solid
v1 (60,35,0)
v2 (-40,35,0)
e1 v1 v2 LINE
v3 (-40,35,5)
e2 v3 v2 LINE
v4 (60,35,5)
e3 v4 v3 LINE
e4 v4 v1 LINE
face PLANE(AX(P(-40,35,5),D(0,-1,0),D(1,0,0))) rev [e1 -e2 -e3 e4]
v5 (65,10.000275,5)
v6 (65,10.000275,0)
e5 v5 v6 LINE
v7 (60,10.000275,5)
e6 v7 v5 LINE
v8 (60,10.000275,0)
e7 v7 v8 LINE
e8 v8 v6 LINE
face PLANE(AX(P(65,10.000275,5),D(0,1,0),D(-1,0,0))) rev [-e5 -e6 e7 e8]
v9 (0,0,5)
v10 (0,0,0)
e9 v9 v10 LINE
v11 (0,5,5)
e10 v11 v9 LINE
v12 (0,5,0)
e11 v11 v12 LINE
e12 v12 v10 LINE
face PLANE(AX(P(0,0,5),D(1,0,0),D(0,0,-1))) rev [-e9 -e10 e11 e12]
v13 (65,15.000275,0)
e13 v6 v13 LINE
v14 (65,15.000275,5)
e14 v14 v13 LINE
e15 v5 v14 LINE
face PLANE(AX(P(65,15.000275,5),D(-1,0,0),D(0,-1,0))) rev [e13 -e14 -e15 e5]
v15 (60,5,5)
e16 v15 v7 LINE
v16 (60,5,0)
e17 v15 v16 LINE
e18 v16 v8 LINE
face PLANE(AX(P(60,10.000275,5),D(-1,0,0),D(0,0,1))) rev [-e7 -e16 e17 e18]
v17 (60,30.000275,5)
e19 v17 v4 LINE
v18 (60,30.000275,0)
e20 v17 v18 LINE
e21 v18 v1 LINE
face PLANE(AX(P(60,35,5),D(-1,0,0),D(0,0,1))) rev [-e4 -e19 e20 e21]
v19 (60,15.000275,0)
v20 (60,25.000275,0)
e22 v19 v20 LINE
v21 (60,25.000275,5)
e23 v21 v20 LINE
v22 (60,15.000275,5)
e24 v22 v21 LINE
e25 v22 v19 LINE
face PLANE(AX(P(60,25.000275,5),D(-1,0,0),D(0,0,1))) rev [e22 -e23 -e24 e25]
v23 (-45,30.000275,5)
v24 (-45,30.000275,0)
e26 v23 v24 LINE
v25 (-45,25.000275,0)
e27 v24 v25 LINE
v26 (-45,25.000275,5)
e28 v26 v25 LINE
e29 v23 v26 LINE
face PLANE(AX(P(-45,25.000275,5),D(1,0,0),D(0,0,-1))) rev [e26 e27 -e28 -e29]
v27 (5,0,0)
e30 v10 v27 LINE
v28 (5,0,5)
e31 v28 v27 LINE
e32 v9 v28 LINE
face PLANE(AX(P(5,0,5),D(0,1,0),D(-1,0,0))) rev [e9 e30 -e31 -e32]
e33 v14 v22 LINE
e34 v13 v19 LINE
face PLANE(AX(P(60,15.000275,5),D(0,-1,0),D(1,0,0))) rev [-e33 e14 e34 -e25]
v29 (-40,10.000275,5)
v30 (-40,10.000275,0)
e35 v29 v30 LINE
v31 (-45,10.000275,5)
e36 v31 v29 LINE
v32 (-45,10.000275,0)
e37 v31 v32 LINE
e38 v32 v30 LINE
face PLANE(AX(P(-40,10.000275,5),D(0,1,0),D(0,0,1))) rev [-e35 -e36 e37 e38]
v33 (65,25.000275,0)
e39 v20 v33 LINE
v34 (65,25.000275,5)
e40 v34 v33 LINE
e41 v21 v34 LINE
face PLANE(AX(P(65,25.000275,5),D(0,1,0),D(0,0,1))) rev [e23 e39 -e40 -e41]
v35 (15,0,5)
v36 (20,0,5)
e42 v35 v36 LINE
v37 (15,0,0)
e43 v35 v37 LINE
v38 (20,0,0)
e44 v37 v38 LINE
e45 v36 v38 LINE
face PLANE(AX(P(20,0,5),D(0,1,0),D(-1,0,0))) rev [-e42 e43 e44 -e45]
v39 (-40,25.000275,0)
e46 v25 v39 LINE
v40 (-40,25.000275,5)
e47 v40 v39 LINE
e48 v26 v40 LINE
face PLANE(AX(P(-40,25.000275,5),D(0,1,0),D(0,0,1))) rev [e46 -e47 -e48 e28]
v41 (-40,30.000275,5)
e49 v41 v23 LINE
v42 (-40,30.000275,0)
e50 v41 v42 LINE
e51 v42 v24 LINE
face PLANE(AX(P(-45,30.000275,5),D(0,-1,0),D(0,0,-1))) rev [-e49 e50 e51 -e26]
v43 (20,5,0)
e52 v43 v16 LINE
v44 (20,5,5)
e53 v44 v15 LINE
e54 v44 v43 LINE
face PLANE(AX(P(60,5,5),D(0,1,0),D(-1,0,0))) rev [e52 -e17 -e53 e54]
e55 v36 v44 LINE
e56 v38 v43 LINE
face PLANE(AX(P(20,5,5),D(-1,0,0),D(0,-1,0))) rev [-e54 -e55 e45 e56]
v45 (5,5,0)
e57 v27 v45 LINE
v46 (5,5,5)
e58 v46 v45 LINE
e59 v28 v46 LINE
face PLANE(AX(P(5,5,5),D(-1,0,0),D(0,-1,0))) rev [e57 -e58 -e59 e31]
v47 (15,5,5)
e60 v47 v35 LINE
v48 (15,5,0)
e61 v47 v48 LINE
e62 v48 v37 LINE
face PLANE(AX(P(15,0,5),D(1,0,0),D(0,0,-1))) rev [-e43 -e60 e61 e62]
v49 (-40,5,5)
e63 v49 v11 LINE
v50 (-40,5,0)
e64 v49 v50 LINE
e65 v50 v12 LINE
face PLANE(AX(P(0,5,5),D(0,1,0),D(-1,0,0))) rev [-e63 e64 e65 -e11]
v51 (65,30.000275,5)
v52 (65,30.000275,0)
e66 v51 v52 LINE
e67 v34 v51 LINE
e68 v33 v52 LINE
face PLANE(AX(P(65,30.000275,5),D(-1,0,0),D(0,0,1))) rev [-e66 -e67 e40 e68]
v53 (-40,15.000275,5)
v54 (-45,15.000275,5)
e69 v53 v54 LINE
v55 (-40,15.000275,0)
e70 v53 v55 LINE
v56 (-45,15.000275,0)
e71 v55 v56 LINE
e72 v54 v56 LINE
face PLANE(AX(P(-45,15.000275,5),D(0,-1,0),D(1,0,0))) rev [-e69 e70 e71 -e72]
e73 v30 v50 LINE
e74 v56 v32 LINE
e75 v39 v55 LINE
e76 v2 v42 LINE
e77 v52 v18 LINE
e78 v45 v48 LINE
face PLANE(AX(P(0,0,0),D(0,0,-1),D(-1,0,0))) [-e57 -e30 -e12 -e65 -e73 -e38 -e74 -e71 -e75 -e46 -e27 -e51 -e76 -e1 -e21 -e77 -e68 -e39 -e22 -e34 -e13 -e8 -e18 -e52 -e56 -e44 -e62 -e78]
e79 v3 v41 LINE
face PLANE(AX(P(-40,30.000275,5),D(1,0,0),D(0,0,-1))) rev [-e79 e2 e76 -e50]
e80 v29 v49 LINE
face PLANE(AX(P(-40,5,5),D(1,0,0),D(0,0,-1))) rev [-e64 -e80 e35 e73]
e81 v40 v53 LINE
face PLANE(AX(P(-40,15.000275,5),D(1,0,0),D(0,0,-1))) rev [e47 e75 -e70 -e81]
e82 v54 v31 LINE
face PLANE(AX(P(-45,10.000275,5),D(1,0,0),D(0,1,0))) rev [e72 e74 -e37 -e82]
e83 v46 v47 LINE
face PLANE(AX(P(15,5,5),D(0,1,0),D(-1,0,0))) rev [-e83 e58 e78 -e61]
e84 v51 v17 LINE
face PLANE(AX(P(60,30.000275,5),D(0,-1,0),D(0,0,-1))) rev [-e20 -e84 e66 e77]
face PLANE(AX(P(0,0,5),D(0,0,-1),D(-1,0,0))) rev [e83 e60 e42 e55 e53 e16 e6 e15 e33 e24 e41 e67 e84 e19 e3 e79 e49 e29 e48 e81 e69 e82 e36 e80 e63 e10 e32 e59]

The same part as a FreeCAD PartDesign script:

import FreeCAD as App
import Part
import Sketcher

doc = App.newDocument("Part")
params = doc.addObject("Spreadsheet::Sheet", "Params")
for row, (alias, value) in enumerate([
    ("sketch1_width", "5 mm"),
    ("sketch1_width2", "10 mm"),
    ("sketch1_width3", "40 mm"),
    ("pad1_length", "5 mm"),
], start=1):
    params.set(f"A{row}", alias)
    params.set(f"B{row}", "=" + value)
    params.setAlias(f"B{row}", alias)

body = doc.addObject("PartDesign::Body", "Body")

# Sketch on XY plane
sketch1 = body.newObject("Sketcher::SketchObject", "Sketch")
sketch1.AttachmentSupport = (doc.getObject("XY_Plane"), [""])
sketch1.MapMode = "FlatFace"
sketch1.addGeometry([
    Part.LineSegment(App.Vector(0, 5, 0), App.Vector(0, 0, 0)),  # 0
    Part.LineSegment(App.Vector(0, 0, 0), App.Vector(5, 0, 0)),  # 1
    Part.LineSegment(App.Vector(5, 0, 0), App.Vector(5, 5, 0)),  # 2
    Part.LineSegment(App.Vector(5, 5, 0), App.Vector(15, 5, 0)),  # 3
    Part.LineSegment(App.Vector(15, 5, 0), App.Vector(15, 0, 0)),  # 4
    Part.LineSegment(App.Vector(15, 0, 0), App.Vector(20, 0, 0)),  # 5
    Part.LineSegment(App.Vector(20, 0, 0), App.Vector(20, 5, 0)),  # 6
    Part.LineSegment(App.Vector(20, 5, 0), App.Vector(60, 5, 0)),  # 7
    Part.LineSegment(App.Vector(60, 5, 0), App.Vector(60, 10.000275, 0)),  # 8
    Part.LineSegment(App.Vector(60, 10.000275, 0), App.Vector(65, 10.000275, 0)),  # 9
    Part.LineSegment(App.Vector(65, 10.000275, 0), App.Vector(65, 15.000275, 0)),  # 10
    Part.LineSegment(App.Vector(65, 15.000275, 0), App.Vector(60, 15.000275, 0)),  # 11
    Part.LineSegment(App.Vector(60, 15.000275, 0), App.Vector(60, 25.000275, 0)),  # 12
    Part.LineSegment(App.Vector(60, 25.000275, 0), App.Vector(65, 25.000275, 0)),  # 13
    Part.LineSegment(App.Vector(65, 25.000275, 0), App.Vector(65, 30.000275, 0)),  # 14
    Part.LineSegment(App.Vector(65, 30.000275, 0), App.Vector(60, 30.000275, 0)),  # 15
    Part.LineSegment(App.Vector(60, 30.000275, 0), App.Vector(60, 35, 0)),  # 16
    Part.LineSegment(App.Vector(60, 35, 0), App.Vector(-40, 35, 0)),  # 17
    Part.LineSegment(App.Vector(-40, 35, 0), App.Vector(-40, 30.000275, 0)),  # 18
    Part.LineSegment(App.Vector(-40, 30.000275, 0), App.Vector(-45, 30.000275, 0)),  # 19
    Part.LineSegment(App.Vector(-45, 30.000275, 0), App.Vector(-45, 25.000275, 0)),  # 20
    Part.LineSegment(App.Vector(-45, 25.000275, 0), App.Vector(-40, 25.000275, 0)),  # 21
    Part.LineSegment(App.Vector(-40, 25.000275, 0), App.Vector(-40, 15.000275, 0)),  # 22
    Part.LineSegment(App.Vector(-40, 15.000275, 0), App.Vector(-45, 15.000275, 0)),  # 23
    Part.LineSegment(App.Vector(-45, 15.000275, 0), App.Vector(-45, 10.000275, 0)),  # 24
    Part.LineSegment(App.Vector(-45, 10.000275, 0), App.Vector(-40, 10.000275, 0)),  # 25
    Part.LineSegment(App.Vector(-40, 10.000275, 0), App.Vector(-40, 5, 0)),  # 26
    Part.LineSegment(App.Vector(-40, 5, 0), App.Vector(0, 5, 0)),  # 27
], False)
sketch1.addConstraint([
    Sketcher.Constraint("Coincident", 0, 2, 1, 1),
    Sketcher.Constraint("Coincident", 1, 2, 2, 1),
    Sketcher.Constraint("Coincident", 2, 2, 3, 1),
    Sketcher.Constraint("Coincident", 3, 2, 4, 1),
    Sketcher.Constraint("Coincident", 4, 2, 5, 1),
    Sketcher.Constraint("Coincident", 5, 2, 6, 1),
    Sketcher.Constraint("Coincident", 6, 2, 7, 1),
    Sketcher.Constraint("Coincident", 7, 2, 8, 1),
    Sketcher.Constraint("Coincident", 8, 2, 9, 1),
    Sketcher.Constraint("Coincident", 9, 2, 10, 1),
    Sketcher.Constraint("Coincident", 10, 2, 11, 1),
    Sketcher.Constraint("Coincident", 11, 2, 12, 1),
    Sketcher.Constraint("Coincident", 12, 2, 13, 1),
    Sketcher.Constraint("Coincident", 13, 2, 14, 1),
    Sketcher.Constraint("Coincident", 14, 2, 15, 1),
    Sketcher.Constraint("Coincident", 15, 2, 16, 1),
    Sketcher.Constraint("Coincident", 16, 2, 17, 1),
    Sketcher.Constraint("Coincident", 17, 2, 18, 1),
    Sketcher.Constraint("Coincident", 18, 2, 19, 1),
    Sketcher.Constraint("Coincident", 19, 2, 20, 1),
    Sketcher.Constraint("Coincident", 20, 2, 21, 1),
    Sketcher.Constraint("Coincident", 21, 2, 22, 1),
    Sketcher.Constraint("Coincident", 22, 2, 23, 1),
    Sketcher.Constraint("Coincident", 23, 2, 24, 1),
    Sketcher.Constraint("Coincident", 24, 2, 25, 1),
    Sketcher.Constraint("Coincident", 25, 2, 26, 1),
    Sketcher.Constraint("Coincident", 26, 2, 27, 1),
    Sketcher.Constraint("Coincident", 27, 2, 0, 1),
    Sketcher.Constraint("Vertical", 0),
    Sketcher.Constraint("Horizontal", 1),
    Sketcher.Constraint("Vertical", 2),
    Sketcher.Constraint("Horizontal", 3),
    Sketcher.Constraint("Vertical", 4),
    Sketcher.Constraint("Horizontal", 5),
    Sketcher.Constraint("Vertical", 6),
    Sketcher.Constraint("Horizontal", 7),
    Sketcher.Constraint("Vertical", 8),
    Sketcher.Constraint("Horizontal", 9),
    Sketcher.Constraint("Vertical", 10),
    Sketcher.Constraint("Horizontal", 11),
    Sketcher.Constraint("Vertical", 12),
    Sketcher.Constraint("Horizontal", 13),
    Sketcher.Constraint("Vertical", 14),
    Sketcher.Constraint("Horizontal", 15),
    Sketcher.Constraint("Vertical", 16),
    Sketcher.Constraint("Horizontal", 17),
    Sketcher.Constraint("Vertical", 18),
    Sketcher.Constraint("Horizontal", 19),
    Sketcher.Constraint("Vertical", 20),
    Sketcher.Constraint("Horizontal", 21),
    Sketcher.Constraint("Vertical", 22),
    Sketcher.Constraint("Horizontal", 23),
    Sketcher.Constraint("Vertical", 24),
    Sketcher.Constraint("Horizontal", 25),
    Sketcher.Constraint("Vertical", 26),
    Sketcher.Constraint("Horizontal", 27),
    Sketcher.Constraint("Coincident", 0, 2, -1, 1),
    Sketcher.Constraint("PointOnObject", 4, 2, -1),
    Sketcher.Constraint("Horizontal", 3, 2, 6, 2),
    Sketcher.Constraint("Horizontal", 15, 2, 18, 2),
    Sketcher.Constraint("Horizontal", 13, 2, 20, 2),
    Sketcher.Constraint("Horizontal", 11, 2, 22, 2),
    Sketcher.Constraint("Horizontal", 9, 2, 24, 2),
    Sketcher.Constraint("Horizontal", 7, 2, 26, 2),
    Sketcher.Constraint("Vertical", 8, 2, 11, 2),
    Sketcher.Constraint("Vertical", 10, 2, 13, 2),
    Sketcher.Constraint("Vertical", 12, 2, 15, 2),
    Sketcher.Constraint("Vertical", 18, 2, 21, 2),
    Sketcher.Constraint("Vertical", 20, 2, 23, 2),
    Sketcher.Constraint("Vertical", 22, 2, 25, 2),
    Sketcher.Constraint("Equal", 1, 5),
    Sketcher.Constraint("Equal", 5, 9),
    Sketcher.Constraint("Equal", 15, 19),
    Sketcher.Constraint("Equal", 7, 27),
    Sketcher.Constraint("Equal", 25, 0),
    Sketcher.Constraint("Equal", 6, 10),
    Sketcher.Constraint("Equal", 3, 12),
    Sketcher.Constraint("Equal", 10, 14),
    Sketcher.Constraint("DistanceX", 1, 1, 1, 2, 5.0),
    Sketcher.Constraint("DistanceX", 3, 1, 3, 2, 10.0),
    Sketcher.Constraint("DistanceX", 7, 1, 7, 2, 40.0),
    Sketcher.Constraint("DistanceY", -1, 1, 16, 2, 35.0),
    Sketcher.Constraint("DistanceY", 8, 1, 8, 2, 5.000275),
])
sketch1.setExpression("Constraints[78]", "Params.sketch1_width")
sketch1.setExpression("Constraints[79]", "Params.sketch1_width2")
sketch1.setExpression("Constraints[80]", "Params.sketch1_width3")
pad1 = body.newObject("PartDesign::Pad", "Pad")
pad1.Profile = sketch1
pad1.setExpression("Length", "Params.pad1_length")

doc.recompute()
